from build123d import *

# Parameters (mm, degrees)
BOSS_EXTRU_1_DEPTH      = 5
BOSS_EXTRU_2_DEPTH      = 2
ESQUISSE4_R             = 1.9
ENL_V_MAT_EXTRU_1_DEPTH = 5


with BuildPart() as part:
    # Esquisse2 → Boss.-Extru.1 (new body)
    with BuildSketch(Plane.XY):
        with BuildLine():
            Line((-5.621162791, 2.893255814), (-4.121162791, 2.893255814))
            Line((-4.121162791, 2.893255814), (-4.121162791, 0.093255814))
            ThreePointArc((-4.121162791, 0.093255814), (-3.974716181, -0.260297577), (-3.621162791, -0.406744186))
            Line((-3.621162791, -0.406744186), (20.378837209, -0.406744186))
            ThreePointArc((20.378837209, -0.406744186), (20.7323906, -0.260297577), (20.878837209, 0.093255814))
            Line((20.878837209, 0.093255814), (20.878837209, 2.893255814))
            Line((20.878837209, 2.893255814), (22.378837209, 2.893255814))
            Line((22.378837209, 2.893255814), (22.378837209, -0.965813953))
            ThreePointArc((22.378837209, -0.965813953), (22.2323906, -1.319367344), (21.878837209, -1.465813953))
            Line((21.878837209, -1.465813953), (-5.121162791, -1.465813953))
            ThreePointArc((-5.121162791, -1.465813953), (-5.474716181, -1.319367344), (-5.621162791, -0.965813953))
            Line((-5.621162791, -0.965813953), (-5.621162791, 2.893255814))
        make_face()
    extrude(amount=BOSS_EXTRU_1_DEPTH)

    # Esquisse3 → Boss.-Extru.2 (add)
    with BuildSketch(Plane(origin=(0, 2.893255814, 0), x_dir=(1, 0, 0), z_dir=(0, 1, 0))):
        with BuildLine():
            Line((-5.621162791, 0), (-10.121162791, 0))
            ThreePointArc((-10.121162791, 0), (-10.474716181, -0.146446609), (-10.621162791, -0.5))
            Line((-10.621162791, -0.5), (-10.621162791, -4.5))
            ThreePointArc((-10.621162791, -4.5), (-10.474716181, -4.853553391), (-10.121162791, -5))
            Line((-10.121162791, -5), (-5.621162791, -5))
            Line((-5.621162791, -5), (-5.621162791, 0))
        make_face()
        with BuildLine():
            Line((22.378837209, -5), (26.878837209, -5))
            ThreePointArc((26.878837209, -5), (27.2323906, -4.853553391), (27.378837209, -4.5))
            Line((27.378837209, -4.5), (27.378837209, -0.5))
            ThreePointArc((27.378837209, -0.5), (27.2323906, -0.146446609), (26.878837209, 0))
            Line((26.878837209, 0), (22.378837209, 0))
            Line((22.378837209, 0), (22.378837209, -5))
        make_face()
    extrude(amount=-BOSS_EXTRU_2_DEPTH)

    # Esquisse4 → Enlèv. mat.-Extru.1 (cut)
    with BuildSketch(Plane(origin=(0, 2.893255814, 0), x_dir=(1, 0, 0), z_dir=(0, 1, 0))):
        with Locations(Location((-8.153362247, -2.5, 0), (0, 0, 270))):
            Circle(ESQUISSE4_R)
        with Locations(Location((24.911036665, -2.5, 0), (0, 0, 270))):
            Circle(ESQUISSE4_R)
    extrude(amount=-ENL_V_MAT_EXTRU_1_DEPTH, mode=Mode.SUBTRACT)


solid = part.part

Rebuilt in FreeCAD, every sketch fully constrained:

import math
import FreeCAD as App
import Part
import Sketcher
from FreeCAD import Vector

doc = App.newDocument("Part")
params = doc.addObject("Spreadsheet::Sheet", "Params")
for row, (alias, value) in enumerate([
    ("sketch1_radius", "0.5 mm"),
    ("sketch1_width", "27 mm"),
    ("sketch1_width2", "24 mm"),
    ("sketch1_height", "2.8 mm"),
    ("pad1_length", "5 mm"),
    ("sketch2_radius", "0.5 mm"),
    ("sketch2_height", "4 mm"),
    ("sketch2_width", "4.5 mm"),
    ("pad2_length", "2 mm"),
    ("sketch3_diameter", "3.8 mm"),
    ("pocket1_length", "5 mm"),
], start=1):
    params.set(f"A{row}", alias)
    params.set(f"B{row}", "=" + value)
    params.setAlias(f"B{row}", alias)

body = doc.addObject("PartDesign::Body", "Body")

sketch1 = body.newObject("Sketcher::SketchObject", "Sketch")
sketch1.AttachmentSupport = (doc.getObject("XY_Plane"), [""])
sketch1.MapMode = "FlatFace"
sketch1.addGeometry(Part.LineSegment(Vector(-4.12, 2.89, 0), Vector(-5.62, 2.89, 0)), False)
sketch1.addGeometry(Part.LineSegment(Vector(-5.62, 2.89, 0), Vector(-5.62, -0.97, 0)), False)
sketch1.addGeometry(Part.ArcOfCircle(Part.Circle(Vector(-5.12, -0.97, 0), Vector(0, 0, 1), 0.5), math.radians(180), math.radians(270)), False)
sketch1.addGeometry(Part.LineSegment(Vector(-5.12, -1.47, 0), Vector(21.88, -1.47, 0)), False)
sketch1.addGeometry(Part.ArcOfCircle(Part.Circle(Vector(21.88, -0.97, 0), Vector(0, 0, 1), 0.5), math.radians(-90), math.radians(0)), False)
sketch1.addGeometry(Part.LineSegment(Vector(22.38, -0.97, 0), Vector(22.38, 2.89, 0)), False)
sketch1.addGeometry(Part.LineSegment(Vector(22.38, 2.89, 0), Vector(20.88, 2.89, 0)), False)
sketch1.addGeometry(Part.LineSegment(Vector(20.88, 2.89, 0), Vector(20.88, 0.09, 0)), False)
sketch1.addGeometry(Part.ArcOfCircle(Part.Circle(Vector(20.38, 0.09, 0), Vector(0, 0, 1), 0.5), math.radians(-90), math.radians(0)), False)
sketch1.addGeometry(Part.LineSegment(Vector(20.38, -0.41, 0), Vector(-3.62, -0.41, 0)), False)
sketch1.addGeometry(Part.ArcOfCircle(Part.Circle(Vector(-3.62, 0.09, 0), Vector(0, 0, 1), 0.5), math.radians(180), math.radians(270)), False)
sketch1.addGeometry(Part.LineSegment(Vector(-4.12, 0.09, 0), Vector(-4.12, 2.89, 0)), False)
sketch1.addConstraint(Sketcher.Constraint("Coincident", 0, 2, 1, 1))
sketch1.addConstraint(Sketcher.Constraint("Tangent", 1, 2, 2, 1))
sketch1.addConstraint(Sketcher.Constraint("Tangent", 2, 2, 3, 1))
sketch1.addConstraint(Sketcher.Constraint("Tangent", 3, 2, 4, 1))
sketch1.addConstraint(Sketcher.Constraint("Tangent", 4, 2, 5, 1))
sketch1.addConstraint(Sketcher.Constraint("Coincident", 5, 2, 6, 1))
sketch1.addConstraint(Sketcher.Constraint("Coincident", 6, 2, 7, 1))
sketch1.addConstraint(Sketcher.Constraint("Tangent", 7, 2, 8, 2))
sketch1.addConstraint(Sketcher.Constraint("Tangent", 8, 1, 9, 1))
sketch1.addConstraint(Sketcher.Constraint("Tangent", 9, 2, 10, 2))
sketch1.addConstraint(Sketcher.Constraint("Tangent", 10, 1, 11, 1))
sketch1.addConstraint(Sketcher.Constraint("Coincident", 11, 2, 0, 1))
sketch1.addConstraint(Sketcher.Constraint("Horizontal", 0))
sketch1.addConstraint(Sketcher.Constraint("Vertical", 1))
sketch1.addConstraint(Sketcher.Constraint("Horizontal", 3))
sketch1.addConstraint(Sketcher.Constraint("Vertical", 5))
sketch1.addConstraint(Sketcher.Constraint("Horizontal", 6))
sketch1.addConstraint(Sketcher.Constraint("Vertical", 7))
sketch1.addConstraint(Sketcher.Constraint("Horizontal", 9))
sketch1.addConstraint(Sketcher.Constraint("Vertical", 11))
sketch1.addConstraint(Sketcher.Constraint("Equal", 2, 4))
sketch1.addConstraint(Sketcher.Constraint("Equal", 4, 8))
sketch1.addConstraint(Sketcher.Constraint("Equal", 8, 10))
sketch1.addConstraint(Sketcher.Constraint("Horizontal", 0, 2, 5, 2))
sketch1.addConstraint(Sketcher.Constraint("Equal", 0, 6))
sketch1.addConstraint(Sketcher.Constraint("Radius", 2, 0.5))
sketch1.addConstraint(Sketcher.Constraint("DistanceX", 3, 1, 3, 2, 27.0))
sketch1.addConstraint(Sketcher.Constraint("DistanceX", 9, 2, 9, 1, 24.0))
sketch1.addConstraint(Sketcher.Constraint("DistanceY", 7, 2, 7, 1, 2.8))
sketch1.addConstraint(Sketcher.Constraint("DistanceY", 1, 2, 1, 1, 3.85907))
sketch1.addConstraint(Sketcher.Constraint("DistanceX", 2, 3, -1, 1, 5.121163))
sketch1.addConstraint(Sketcher.Constraint("DistanceY", 2, 3, -1, 1, 0.965814))
sketch1.setExpression("Constraints[25]", "Params.sketch1_radius")
sketch1.setExpression("Constraints[26]", "Params.sketch1_width")
sketch1.setExpression("Constraints[27]", "Params.sketch1_width2")
sketch1.setExpression("Constraints[28]", "Params.sketch1_height")
pad1 = body.newObject("PartDesign::Pad", "Pad")
pad1.Profile = sketch1
pad1.setExpression("Length", "Params.pad1_length")

sketch2 = body.newObject("Sketcher::SketchObject", "Sketch001")
sketch2.AttachmentSupport = (doc.getObject("XZ_Plane"), [""])
sketch2.MapMode = "FlatFace"
sketch2.AttachmentOffset = App.Placement(Vector(0, 0, -2.893256), App.Rotation())
sketch2.addGeometry(Part.LineSegment(Vector(-5.62, 0, 0), Vector(-10.12, 0, 0)), False)
sketch2.addGeometry(Part.ArcOfCircle(Part.Circle(Vector(-10.12, 0.5, 0), Vector(0, 0, 1), 0.5), math.radians(180), math.radians(270)), False)
sketch2.addGeometry(Part.LineSegment(Vector(-10.62, 0.5, 0), Vector(-10.62, 4.5, 0)), False)
sketch2.addGeometry(Part.ArcOfCircle(Part.Circle(Vector(-10.12, 4.5, 0), Vector(0, 0, 1), 0.5), math.radians(90), math.radians(180)), False)
sketch2.addGeometry(Part.LineSegment(Vector(-10.12, 5, 0), Vector(-5.62, 5, 0)), False)
sketch2.addGeometry(Part.LineSegment(Vector(-5.62, 5, 0), Vector(-5.62, 0, 0)), False)
sketch2.addGeometry(Part.LineSegment(Vector(22.38, 5, 0), Vector(26.88, 5, 0)), False)
sketch2.addGeometry(Part.ArcOfCircle(Part.Circle(Vector(26.88, 4.5, 0), Vector(0, 0, 1), 0.5), math.radians(0), math.radians(90)), False)
sketch2.addGeometry(Part.LineSegment(Vector(27.38, 4.5, 0), Vector(27.38, 0.5, 0)), False)
sketch2.addGeometry(Part.ArcOfCircle(Part.Circle(Vector(26.88, 0.5, 0), Vector(0, 0, 1), 0.5), math.radians(-90), math.radians(0)), False)
sketch2.addGeometry(Part.LineSegment(Vector(26.88, 0, 0), Vector(22.38, 0, 0)), False)
sketch2.addGeometry(Part.LineSegment(Vector(22.38, 0, 0), Vector(22.38, 5, 0)), False)
sketch2.addConstraint(Sketcher.Constraint("Tangent", 0, 2, 1, 2))
sketch2.addConstraint(Sketcher.Constraint("Tangent", 1, 1, 2, 1))
sketch2.addConstraint(Sketcher.Constraint("Tangent", 2, 2, 3, 2))
sketch2.addConstraint(Sketcher.Constraint("Tangent", 3, 1, 4, 1))
sketch2.addConstraint(Sketcher.Constraint("Coincident", 4, 2, 5, 1))
sketch2.addConstraint(Sketcher.Constraint("Coincident", 5, 2, 0, 1))
sketch2.addConstraint(Sketcher.Constraint("Tangent", 6, 2, 7, 2))
sketch2.addConstraint(Sketcher.Constraint("Tangent", 7, 1, 8, 1))
sketch2.addConstraint(Sketcher.Constraint("Tangent", 8, 2, 9, 2))
sketch2.addConstraint(Sketcher.Constraint("Tangent", 9, 1, 10, 1))
sketch2.addConstraint(Sketcher.Constraint("Coincident", 10, 2, 11, 1))
sketch2.addConstraint(Sketcher.Constraint("Coincident", 11, 2, 6, 1))
sketch2.addConstraint(Sketcher.Constraint("Horizontal", 0))
sketch2.addConstraint(Sketcher.Constraint("Vertical", 2))
sketch2.addConstraint(Sketcher.Constraint("Horizontal", 4))
sketch2.addConstraint(Sketcher.Constraint("Vertical", 5))
sketch2.addConstraint(Sketcher.Constraint("Horizontal", 6))
sketch2.addConstraint(Sketcher.Constraint("Vertical", 8))
sketch2.addConstraint(Sketcher.Constraint("Horizontal", 10))
sketch2.addConstraint(Sketcher.Constraint("Vertical", 11))
sketch2.addConstraint(Sketcher.Constraint("Equal", 1, 3))
sketch2.addConstraint(Sketcher.Constraint("Equal", 3, 7))
sketch2.addConstraint(Sketcher.Constraint("Equal", 7, 9))
sketch2.addConstraint(Sketcher.Constraint("PointOnObject", 0, 2, -1))
sketch2.addConstraint(Sketcher.Constraint("PointOnObject", 9, 1, -1))
sketch2.addConstraint(Sketcher.Constraint("Horizontal", 3, 3, 7, 3))
sketch2.addConstraint(Sketcher.Constraint("Equal", 4, 6))
sketch2.addConstraint(Sketcher.Constraint("Radius", 1, 0.5))
sketch2.addConstraint(Sketcher.Constraint("DistanceY", 2, 1, 2, 2, 4.0))
sketch2.addConstraint(Sketcher.Constraint("DistanceX", 0, 2, 0, 1, 4.5))
sketch2.addConstraint(Sketcher.Constraint("DistanceX", 3, 3, 7, 3, 37.0))
sketch2.addConstraint(Sketcher.Constraint("DistanceX", 1, 3, -1, 1, 10.121163))
sketch2.setExpression("Constraints[27]", "Params.sketch2_radius")
sketch2.setExpression("Constraints[28]", "Params.sketch2_height")
sketch2.setExpression("Constraints[29]", "Params.sketch2_width")
pad2 = body.newObject("PartDesign::Pad", "Pad001")
pad2.Profile = sketch2
pad2.setExpression("Length", "Params.pad2_length")

sketch3 = body.newObject("Sketcher::SketchObject", "Sketch002")
sketch3.AttachmentSupport = (doc.getObject("XZ_Plane"), [""])
sketch3.MapMode = "FlatFace"
sketch3.AttachmentOffset = App.Placement(Vector(0, 0, -2.893256), App.Rotation())
sketch3.addGeometry(Part.Circle(Vector(-8.2, 2.5, 0), Vector(0, 0, 1), 1.9), False)
sketch3.addGeometry(Part.Circle(Vector(24.9, 2.5, 0), Vector(0, 0, 1), 1.9), False)
sketch3.addConstraint(Sketcher.Constraint("Equal", 0, 1))
sketch3.addConstraint(Sketcher.Constraint("Horizontal", 0, 3, 1, 3))
sketch3.addConstraint(Sketcher.Constraint("Diameter", 0, 3.8))
sketch3.addConstraint(Sketcher.Constraint("DistanceY", -1, 1, 0, 3, 2.5))
sketch3.addConstraint(Sketcher.Constraint("DistanceX", 0, 3, 1, 3, 33.064399))
sketch3.addConstraint(Sketcher.Constraint("DistanceX", 0, 3, -1, 1, 8.153362))
sketch3.setExpression("Constraints[2]", "Params.sketch3_diameter")
pocket1 = body.newObject("PartDesign::Pocket", "Pocket")
pocket1.Profile = sketch3
pocket1.setExpression("Length", "Params.pocket1_length")
pocket1.Reversed = True

doc.recompute()
